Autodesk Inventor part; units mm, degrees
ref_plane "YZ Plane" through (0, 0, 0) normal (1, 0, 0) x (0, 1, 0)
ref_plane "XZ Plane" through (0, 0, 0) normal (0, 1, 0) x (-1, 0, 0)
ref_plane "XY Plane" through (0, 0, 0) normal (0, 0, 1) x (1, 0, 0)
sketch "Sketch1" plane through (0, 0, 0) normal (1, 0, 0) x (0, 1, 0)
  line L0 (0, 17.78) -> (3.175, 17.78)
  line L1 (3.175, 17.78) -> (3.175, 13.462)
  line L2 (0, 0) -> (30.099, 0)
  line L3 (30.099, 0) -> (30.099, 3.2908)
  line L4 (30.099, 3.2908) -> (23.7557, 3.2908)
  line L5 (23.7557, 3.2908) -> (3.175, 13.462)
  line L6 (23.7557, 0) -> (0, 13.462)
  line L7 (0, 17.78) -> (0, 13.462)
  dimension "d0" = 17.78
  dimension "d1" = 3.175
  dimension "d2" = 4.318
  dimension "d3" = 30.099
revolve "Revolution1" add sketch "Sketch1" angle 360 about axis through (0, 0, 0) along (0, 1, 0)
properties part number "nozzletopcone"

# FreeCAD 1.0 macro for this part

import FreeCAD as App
import Part
import Sketcher

V = App.Vector
Q = App.Units.Quantity

doc = App.newDocument("Part")
body = doc.addObject("PartDesign::Body", "Body")

sketch1 = body.newObject("Sketcher::SketchObject", "Sketch")
sketch1.AttachmentSupport = (doc.getObject("YZ_Plane"), [""])
sketch1.MapMode = "FlatFace"
sketch1.addGeometry([
    Part.LineSegment(V(3.175, 17.78, 0), V(0, 17.78, 0)),
    Part.LineSegment(V(0, 17.78, 0), V(0, 13.462, 0)),
    Part.LineSegment(V(0, 13.462, 0), V(23.7557, 0, 0)),
    Part.LineSegment(V(23.7557, 0, 0), V(30.099, 0, 0)),
    Part.LineSegment(V(30.099, 0, 0), V(30.099, 3.2908, 0)),
    Part.LineSegment(V(30.099, 3.2908, 0), V(23.7557, 3.2908, 0)),
    Part.LineSegment(V(23.7557, 3.2908, 0), V(3.175, 13.462, 0)),
    Part.LineSegment(V(3.175, 13.462, 0), V(3.175, 17.78, 0)),
], False)
sketch1.addConstraint([
    Sketcher.Constraint("Coincident", 0, 2, 1, 1),
    Sketcher.Constraint("Coincident", 1, 2, 2, 1),
    Sketcher.Constraint("Coincident", 2, 2, 3, 1),
    Sketcher.Constraint("Coincident", 3, 2, 4, 1),
    Sketcher.Constraint("Coincident", 4, 2, 5, 1),
    Sketcher.Constraint("Coincident", 5, 2, 6, 1),
    Sketcher.Constraint("Coincident", 6, 2, 7, 1),
    Sketcher.Constraint("Coincident", 7, 2, 0, 1),
    Sketcher.Constraint("Horizontal", 0),
    Sketcher.Constraint("Vertical", 1),
    Sketcher.Constraint("Horizontal", 3),
    Sketcher.Constraint("Vertical", 4),
    Sketcher.Constraint("Horizontal", 5),
    Sketcher.Constraint("Vertical", 7),
    Sketcher.Constraint("PointOnObject", 0, 2, -2),
    Sketcher.Constraint("PointOnObject", 2, 2, -1),
    Sketcher.Constraint("Horizontal", 1, 2, 6, 2),
    Sketcher.Constraint("Vertical", 2, 2, 5, 2),
    Sketcher.Constraint("DistanceY", 1, 2, 1, 1, Q("0.17 in")),
    Sketcher.Constraint("DistanceY", -1, 1, 0, 2, Q("0.7 in")),
    Sketcher.Constraint("DistanceX", 0, 2, 0, 1, Q("0.125 in")),
    Sketcher.Constraint("DistanceX", -1, 1, 3, 2, Q("1.185 in")),
    Sketcher.Constraint("Angle", 6, Q("153.701 deg")),
    Sketcher.Constraint("Angle", 2, Q("-29.5396 deg")),
])
revolution = body.newObject("PartDesign::Revolution", "Revolution")
revolution.Profile = sketch1
revolution.ReferenceAxis = (sketch1, ["H_Axis"])
revolution.Angle = 360

doc.recompute()
